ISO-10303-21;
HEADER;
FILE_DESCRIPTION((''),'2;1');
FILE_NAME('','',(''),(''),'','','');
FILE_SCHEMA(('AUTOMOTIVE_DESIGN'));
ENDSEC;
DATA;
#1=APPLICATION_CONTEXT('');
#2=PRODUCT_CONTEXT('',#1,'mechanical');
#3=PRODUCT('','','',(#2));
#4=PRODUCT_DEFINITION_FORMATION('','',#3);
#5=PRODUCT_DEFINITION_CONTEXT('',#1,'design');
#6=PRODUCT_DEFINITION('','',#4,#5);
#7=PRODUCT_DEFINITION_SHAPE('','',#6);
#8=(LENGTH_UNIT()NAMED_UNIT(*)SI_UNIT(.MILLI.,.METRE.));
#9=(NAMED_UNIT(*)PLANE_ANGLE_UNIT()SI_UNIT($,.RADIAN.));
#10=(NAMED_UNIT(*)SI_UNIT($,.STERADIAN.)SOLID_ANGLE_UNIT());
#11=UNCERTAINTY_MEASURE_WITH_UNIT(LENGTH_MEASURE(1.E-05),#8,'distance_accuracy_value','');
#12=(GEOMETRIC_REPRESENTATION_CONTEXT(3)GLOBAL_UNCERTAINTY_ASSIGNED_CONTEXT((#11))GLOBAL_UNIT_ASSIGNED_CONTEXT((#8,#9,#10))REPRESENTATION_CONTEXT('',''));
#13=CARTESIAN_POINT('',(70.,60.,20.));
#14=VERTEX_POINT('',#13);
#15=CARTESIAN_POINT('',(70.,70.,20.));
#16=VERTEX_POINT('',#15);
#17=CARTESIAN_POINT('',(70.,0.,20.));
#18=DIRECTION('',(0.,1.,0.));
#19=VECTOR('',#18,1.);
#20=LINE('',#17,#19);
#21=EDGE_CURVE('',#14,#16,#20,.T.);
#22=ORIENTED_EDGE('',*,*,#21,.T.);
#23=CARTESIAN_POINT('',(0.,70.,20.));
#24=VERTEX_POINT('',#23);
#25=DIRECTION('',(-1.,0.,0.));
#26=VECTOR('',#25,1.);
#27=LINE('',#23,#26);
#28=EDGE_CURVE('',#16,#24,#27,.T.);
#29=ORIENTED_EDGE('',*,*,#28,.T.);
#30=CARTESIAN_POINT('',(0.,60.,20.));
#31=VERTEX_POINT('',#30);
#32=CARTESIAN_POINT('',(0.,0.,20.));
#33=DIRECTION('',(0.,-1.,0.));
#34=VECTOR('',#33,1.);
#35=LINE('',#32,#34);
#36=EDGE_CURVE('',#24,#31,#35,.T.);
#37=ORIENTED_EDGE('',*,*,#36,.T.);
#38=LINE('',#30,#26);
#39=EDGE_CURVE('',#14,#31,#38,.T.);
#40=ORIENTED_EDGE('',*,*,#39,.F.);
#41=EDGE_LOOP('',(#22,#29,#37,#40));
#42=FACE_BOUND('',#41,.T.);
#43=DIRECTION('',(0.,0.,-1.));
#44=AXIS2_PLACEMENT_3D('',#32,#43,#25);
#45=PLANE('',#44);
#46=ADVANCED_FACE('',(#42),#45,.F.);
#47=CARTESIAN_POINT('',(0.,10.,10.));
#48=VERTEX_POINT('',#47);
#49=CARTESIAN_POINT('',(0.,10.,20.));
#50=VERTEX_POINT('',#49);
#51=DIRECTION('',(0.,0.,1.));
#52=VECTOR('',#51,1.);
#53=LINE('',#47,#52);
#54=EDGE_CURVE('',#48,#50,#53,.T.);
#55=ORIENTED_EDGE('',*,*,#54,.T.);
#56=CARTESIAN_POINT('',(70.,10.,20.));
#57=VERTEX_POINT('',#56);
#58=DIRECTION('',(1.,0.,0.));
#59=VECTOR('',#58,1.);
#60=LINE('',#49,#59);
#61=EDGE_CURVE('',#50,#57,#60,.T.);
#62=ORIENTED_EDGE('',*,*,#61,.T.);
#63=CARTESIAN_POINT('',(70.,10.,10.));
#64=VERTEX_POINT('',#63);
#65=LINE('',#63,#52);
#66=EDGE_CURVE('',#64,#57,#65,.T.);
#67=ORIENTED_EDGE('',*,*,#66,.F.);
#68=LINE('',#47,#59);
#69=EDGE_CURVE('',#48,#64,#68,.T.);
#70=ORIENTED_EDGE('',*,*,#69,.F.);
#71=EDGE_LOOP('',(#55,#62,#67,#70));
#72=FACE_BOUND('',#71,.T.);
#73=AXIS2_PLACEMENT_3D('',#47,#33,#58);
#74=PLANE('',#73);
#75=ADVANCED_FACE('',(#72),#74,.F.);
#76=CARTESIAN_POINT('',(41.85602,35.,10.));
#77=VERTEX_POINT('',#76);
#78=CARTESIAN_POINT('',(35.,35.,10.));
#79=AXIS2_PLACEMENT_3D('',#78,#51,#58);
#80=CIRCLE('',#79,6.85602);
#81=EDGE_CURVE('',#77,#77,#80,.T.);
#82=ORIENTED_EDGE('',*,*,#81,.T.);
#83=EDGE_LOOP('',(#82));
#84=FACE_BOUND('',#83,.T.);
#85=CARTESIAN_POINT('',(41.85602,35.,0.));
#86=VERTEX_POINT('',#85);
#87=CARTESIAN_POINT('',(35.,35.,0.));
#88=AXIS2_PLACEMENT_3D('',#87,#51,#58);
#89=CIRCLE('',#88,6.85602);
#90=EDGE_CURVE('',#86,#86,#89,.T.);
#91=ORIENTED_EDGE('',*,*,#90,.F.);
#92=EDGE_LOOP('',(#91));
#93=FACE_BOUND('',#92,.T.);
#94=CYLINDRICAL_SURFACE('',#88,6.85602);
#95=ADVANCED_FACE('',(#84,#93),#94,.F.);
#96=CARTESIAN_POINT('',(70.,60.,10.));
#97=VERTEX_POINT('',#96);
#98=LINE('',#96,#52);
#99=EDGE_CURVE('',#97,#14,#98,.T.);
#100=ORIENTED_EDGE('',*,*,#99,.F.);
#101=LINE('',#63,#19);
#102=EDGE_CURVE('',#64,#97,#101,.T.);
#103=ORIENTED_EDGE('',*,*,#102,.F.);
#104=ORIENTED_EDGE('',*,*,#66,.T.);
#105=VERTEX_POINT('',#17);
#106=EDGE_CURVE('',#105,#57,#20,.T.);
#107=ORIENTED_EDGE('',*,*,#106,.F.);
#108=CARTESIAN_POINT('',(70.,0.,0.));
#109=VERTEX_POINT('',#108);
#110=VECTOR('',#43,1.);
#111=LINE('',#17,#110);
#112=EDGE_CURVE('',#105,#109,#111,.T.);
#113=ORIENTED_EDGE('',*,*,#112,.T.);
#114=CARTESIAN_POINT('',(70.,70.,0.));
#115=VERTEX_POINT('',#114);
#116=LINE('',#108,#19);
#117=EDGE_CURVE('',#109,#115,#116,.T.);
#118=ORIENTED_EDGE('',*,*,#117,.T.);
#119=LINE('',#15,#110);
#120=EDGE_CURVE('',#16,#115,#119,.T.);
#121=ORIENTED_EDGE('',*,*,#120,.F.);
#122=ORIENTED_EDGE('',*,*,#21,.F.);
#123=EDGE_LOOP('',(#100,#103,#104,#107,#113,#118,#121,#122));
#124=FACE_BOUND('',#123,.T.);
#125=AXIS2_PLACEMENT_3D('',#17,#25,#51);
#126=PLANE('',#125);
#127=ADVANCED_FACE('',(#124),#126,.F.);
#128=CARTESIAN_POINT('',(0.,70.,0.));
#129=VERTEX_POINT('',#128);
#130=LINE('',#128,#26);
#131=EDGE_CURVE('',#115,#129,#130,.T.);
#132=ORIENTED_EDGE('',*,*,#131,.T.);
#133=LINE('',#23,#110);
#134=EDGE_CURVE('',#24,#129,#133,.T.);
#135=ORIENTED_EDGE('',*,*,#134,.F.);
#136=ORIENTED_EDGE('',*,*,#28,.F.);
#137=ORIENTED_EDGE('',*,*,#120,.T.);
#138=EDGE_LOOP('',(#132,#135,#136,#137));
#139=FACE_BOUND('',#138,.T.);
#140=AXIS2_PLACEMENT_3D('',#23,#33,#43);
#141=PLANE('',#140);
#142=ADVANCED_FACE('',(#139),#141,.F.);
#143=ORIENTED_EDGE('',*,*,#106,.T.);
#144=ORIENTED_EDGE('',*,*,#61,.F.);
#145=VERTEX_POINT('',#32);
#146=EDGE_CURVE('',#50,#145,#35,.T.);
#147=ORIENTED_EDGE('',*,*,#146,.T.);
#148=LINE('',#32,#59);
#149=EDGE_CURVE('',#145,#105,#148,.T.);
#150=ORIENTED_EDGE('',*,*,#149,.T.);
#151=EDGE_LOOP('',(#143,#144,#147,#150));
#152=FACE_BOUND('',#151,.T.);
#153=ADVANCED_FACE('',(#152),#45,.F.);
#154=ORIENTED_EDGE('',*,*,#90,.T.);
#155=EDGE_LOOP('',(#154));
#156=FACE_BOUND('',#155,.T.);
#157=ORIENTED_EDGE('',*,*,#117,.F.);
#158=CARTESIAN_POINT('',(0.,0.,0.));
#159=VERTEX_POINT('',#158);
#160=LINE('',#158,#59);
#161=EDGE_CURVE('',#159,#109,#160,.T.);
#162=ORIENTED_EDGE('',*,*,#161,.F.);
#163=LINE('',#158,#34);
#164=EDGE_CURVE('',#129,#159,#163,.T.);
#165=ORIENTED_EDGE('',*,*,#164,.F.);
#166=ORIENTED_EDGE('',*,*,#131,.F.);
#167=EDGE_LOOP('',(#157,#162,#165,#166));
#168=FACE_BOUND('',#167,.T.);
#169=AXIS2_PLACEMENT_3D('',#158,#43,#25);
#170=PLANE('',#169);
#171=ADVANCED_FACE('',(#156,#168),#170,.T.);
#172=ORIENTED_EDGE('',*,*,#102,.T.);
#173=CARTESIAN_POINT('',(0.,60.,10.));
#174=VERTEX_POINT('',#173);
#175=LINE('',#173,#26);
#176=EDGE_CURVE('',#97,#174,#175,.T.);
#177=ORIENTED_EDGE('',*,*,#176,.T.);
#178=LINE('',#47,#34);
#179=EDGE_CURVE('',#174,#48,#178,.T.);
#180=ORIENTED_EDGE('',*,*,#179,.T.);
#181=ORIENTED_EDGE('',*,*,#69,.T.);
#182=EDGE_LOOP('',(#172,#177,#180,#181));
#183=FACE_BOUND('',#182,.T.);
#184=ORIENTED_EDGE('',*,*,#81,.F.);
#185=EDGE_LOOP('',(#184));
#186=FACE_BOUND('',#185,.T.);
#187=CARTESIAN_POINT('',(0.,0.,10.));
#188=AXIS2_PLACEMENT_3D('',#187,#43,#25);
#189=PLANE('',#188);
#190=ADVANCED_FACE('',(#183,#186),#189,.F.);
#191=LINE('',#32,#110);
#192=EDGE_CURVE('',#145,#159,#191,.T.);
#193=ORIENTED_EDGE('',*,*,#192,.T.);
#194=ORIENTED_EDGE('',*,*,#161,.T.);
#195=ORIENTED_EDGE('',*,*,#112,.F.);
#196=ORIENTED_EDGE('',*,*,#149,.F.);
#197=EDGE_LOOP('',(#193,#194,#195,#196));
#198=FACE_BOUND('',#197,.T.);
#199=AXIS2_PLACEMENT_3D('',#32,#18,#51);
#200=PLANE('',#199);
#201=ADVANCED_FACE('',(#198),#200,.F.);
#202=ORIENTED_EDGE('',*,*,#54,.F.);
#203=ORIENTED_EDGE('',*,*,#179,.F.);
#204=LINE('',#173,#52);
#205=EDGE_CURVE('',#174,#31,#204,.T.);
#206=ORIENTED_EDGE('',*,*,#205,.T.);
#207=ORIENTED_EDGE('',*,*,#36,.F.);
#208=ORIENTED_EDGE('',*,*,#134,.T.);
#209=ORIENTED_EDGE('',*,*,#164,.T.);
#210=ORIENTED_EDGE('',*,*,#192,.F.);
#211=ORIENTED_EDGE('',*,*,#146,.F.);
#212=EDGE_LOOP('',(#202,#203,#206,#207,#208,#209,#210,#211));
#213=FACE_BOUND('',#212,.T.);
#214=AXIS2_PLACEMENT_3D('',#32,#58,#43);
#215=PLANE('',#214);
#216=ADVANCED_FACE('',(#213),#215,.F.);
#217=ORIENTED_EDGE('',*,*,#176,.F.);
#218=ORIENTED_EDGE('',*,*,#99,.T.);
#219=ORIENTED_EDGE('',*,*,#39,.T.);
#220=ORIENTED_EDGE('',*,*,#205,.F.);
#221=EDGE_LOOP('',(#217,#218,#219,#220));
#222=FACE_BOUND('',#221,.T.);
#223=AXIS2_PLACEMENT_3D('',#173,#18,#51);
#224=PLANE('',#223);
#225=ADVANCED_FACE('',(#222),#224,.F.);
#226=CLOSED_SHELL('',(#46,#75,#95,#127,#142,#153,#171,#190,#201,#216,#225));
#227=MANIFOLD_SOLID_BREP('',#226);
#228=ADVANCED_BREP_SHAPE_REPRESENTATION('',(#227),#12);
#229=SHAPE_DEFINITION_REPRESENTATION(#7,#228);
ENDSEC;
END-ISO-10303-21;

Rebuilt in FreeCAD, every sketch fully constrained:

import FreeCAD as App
import Part
import Sketcher
from FreeCAD import Vector
Q = App.Units.Quantity


def add_polygon(sketch, points):
    """Adds a closed chain of lines whose ends are joined by coincident constraints."""
    first, n = sketch.GeometryCount, len(points)
    for a, b in zip(points, points[1:] + points[:1]):
        sketch.addGeometry(Part.LineSegment(App.Vector(*a, 0), App.Vector(*b, 0)), False)
    for i in range(n):
        sketch.addConstraint(Sketcher.Constraint("Coincident", first + i, 2, first + (i + 1) % n, 1))

doc = App.newDocument("Part")
body = doc.addObject("PartDesign::Body", "Body")

sketch1 = body.newObject("Sketcher::SketchObject", "Sketch")
sketch1.AttachmentSupport = (doc.getObject("XY_Plane"), [""])
sketch1.MapMode = "FlatFace"
add_polygon(sketch1, [(0, 70), (0, 0), (70, 0), (70, 70)])
sketch1.addConstraint(Sketcher.Constraint("Vertical", 0))
sketch1.addConstraint(Sketcher.Constraint("Horizontal", 1))
sketch1.addConstraint(Sketcher.Constraint("Vertical", 2))
sketch1.addConstraint(Sketcher.Constraint("Horizontal", 3))
sketch1.addConstraint(Sketcher.Constraint("Coincident", 0, 2, -1, 1))
sketch1.addConstraint(Sketcher.Constraint("Equal", 3, 0))
sketch1.addConstraint(Sketcher.Constraint("DistanceX", 1, 1, 1, 2, Q("70 mm")))
pad1 = body.newObject("PartDesign::Pad", "Pad")
pad1.Profile = sketch1
pad1.Length = 20

sketch2 = body.newObject("Sketcher::SketchObject", "Sketch001")
sketch2.AttachmentSupport = (doc.getObject("XY_Plane"), [""])
sketch2.MapMode = "FlatFace"
sketch2.AttachmentOffset = App.Placement(Vector(0, 0, 20), App.Rotation())
add_polygon(sketch2, [(0, 60), (0, 10), (70, 10), (70, 60)])
sketch2.addConstraint(Sketcher.Constraint("Vertical", 0))
sketch2.addConstraint(Sketcher.Constraint("Horizontal", 1))
sketch2.addConstraint(Sketcher.Constraint("Vertical", 2))
sketch2.addConstraint(Sketcher.Constraint("Horizontal", 3))
sketch2.addConstraint(Sketcher.Constraint("PointOnObject", 0, 2, -2))
sketch2.addConstraint(Sketcher.Constraint("DistanceX", 1, 1, 1, 2, Q("70 mm")))
sketch2.addConstraint(Sketcher.Constraint("DistanceY", 0, 2, 0, 1, Q("50 mm")))
sketch2.addConstraint(Sketcher.Constraint("DistanceY", -1, 1, 0, 2, Q("10 mm")))
pocket1 = body.newObject("PartDesign::Pocket", "Pocket")
pocket1.Profile = sketch2
pocket1.Length = 10

sketch3 = body.newObject("Sketcher::SketchObject", "Sketch002")
sketch3.AttachmentSupport = (doc.getObject("XY_Plane"), [""])
sketch3.MapMode = "FlatFace"
sketch3.AttachmentOffset = App.Placement(Vector(0, 0, 10), App.Rotation())
sketch3.addGeometry(Part.Circle(Vector(35, 35, 0), Vector(0, 0, 1), 6.85602), False)
sketch3.addConstraint(Sketcher.Constraint("DistanceX", -1, 1, 0, 3, Q("35 mm")))
sketch3.addConstraint(Sketcher.Constraint("DistanceY", -1, 1, 0, 3, Q("35 mm")))
sketch3.addConstraint(Sketcher.Constraint("Diameter", 0, Q("13.712041 mm")))
pocket2 = body.newObject("PartDesign::Pocket", "Pocket001")
pocket2.Profile = sketch3
pocket2.Length = 10

doc.recompute()
